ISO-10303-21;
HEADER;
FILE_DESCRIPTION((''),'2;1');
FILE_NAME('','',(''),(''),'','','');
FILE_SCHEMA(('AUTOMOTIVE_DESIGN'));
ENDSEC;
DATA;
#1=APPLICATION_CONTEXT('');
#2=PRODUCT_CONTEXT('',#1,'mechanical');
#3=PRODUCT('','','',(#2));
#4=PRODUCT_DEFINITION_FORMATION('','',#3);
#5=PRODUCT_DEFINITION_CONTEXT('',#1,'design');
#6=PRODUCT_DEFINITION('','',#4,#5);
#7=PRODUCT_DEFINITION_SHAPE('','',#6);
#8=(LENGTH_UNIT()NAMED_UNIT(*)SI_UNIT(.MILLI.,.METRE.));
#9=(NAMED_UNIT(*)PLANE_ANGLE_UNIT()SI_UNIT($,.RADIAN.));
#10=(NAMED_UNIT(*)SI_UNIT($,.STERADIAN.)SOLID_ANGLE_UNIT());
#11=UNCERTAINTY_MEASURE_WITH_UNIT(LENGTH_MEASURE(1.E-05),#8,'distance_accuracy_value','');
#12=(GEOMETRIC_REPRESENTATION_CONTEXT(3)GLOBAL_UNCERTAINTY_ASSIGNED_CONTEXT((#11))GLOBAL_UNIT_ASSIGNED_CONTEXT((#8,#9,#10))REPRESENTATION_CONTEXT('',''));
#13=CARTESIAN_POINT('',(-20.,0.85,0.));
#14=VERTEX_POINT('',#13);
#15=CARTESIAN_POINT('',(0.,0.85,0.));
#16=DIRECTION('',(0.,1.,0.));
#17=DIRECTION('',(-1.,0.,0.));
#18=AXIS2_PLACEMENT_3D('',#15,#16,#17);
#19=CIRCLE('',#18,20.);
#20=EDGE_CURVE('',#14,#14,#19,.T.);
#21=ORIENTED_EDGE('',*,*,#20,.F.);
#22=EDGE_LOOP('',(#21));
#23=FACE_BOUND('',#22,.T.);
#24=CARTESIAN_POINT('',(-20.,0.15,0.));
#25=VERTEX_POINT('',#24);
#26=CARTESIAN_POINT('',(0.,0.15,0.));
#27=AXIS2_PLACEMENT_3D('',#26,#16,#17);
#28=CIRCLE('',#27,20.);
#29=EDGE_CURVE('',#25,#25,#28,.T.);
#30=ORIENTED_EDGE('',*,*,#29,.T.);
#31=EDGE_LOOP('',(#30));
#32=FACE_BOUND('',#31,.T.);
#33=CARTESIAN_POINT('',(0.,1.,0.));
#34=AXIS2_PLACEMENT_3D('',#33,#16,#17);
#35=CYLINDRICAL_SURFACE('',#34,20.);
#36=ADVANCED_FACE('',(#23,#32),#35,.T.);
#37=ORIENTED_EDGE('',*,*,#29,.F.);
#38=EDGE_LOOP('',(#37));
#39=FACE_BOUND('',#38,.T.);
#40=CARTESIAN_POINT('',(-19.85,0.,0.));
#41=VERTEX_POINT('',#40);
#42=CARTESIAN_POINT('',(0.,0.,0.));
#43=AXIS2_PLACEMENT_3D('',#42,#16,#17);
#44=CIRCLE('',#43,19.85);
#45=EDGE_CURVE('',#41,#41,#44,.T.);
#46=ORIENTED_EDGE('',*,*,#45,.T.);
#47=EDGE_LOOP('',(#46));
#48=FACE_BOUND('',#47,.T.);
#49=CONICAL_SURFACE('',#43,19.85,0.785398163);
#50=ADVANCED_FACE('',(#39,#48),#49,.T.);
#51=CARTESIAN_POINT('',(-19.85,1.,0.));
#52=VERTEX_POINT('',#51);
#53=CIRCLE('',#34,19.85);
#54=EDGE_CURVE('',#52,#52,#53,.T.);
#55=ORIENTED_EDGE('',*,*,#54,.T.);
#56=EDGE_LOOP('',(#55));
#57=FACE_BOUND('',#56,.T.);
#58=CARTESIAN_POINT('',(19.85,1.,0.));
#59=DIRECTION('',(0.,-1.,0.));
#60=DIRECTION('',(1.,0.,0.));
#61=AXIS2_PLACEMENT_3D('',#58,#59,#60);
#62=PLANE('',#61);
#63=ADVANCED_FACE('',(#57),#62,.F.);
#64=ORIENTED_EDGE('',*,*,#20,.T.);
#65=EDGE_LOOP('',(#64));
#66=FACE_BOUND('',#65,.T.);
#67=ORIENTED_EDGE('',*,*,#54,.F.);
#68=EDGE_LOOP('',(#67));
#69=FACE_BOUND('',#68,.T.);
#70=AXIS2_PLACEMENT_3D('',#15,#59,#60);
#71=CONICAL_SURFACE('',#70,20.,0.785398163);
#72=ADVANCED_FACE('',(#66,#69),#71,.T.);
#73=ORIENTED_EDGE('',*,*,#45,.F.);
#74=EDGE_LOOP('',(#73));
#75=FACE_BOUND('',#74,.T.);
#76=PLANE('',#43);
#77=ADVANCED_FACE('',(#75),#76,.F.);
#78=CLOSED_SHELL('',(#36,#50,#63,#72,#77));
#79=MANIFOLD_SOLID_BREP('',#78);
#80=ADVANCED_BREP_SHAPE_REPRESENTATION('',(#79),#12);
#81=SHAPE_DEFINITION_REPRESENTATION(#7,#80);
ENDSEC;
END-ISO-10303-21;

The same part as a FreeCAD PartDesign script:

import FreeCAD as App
import Part
import Sketcher

V = App.Vector

doc = App.newDocument("Part")
body = doc.addObject("PartDesign::Body", "Body")

sketch1 = doc.addObject("Sketcher::SketchObject", "Sketch")
body.addObject(sketch1)
sketch1.AttachmentSupport = (doc.XY_Plane, [""])
sketch1.MapMode = "FlatFace"
sketch1.addGeometry([
    Part.LineSegment(V(0, 0, 0), V(19.85, 0, 0)),
    Part.LineSegment(V(19.85, 0, 0), V(20, 0.15, 0)),
    Part.LineSegment(V(20, 0.15, 0), V(20, 0.85, 0)),
    Part.LineSegment(V(20, 0.85, 0), V(19.85, 1, 0)),
    Part.LineSegment(V(19.85, 1, 0), V(0, 1, 0)),
    Part.LineSegment(V(0, 1, 0), V(0, 0, 0)),
], False)
sketch1.addConstraint([
    Sketcher.Constraint("Coincident", 0, 2, 1, 1),
    Sketcher.Constraint("Coincident", 1, 2, 2, 1),
    Sketcher.Constraint("Coincident", 2, 2, 3, 1),
    Sketcher.Constraint("Coincident", 3, 2, 4, 1),
    Sketcher.Constraint("Coincident", 4, 2, 5, 1),
    Sketcher.Constraint("Coincident", 5, 2, 0, 1),
    Sketcher.Constraint("Horizontal", 0),
    Sketcher.Constraint("Vertical", 2),
    Sketcher.Constraint("Horizontal", 4),
    Sketcher.Constraint("Vertical", 5),
    Sketcher.Constraint("Coincident", 5, 2, -1, 1),
    Sketcher.Constraint("Perpendicular", 1, 3),
    Sketcher.Constraint("Vertical", 0, 2, 3, 2),
    Sketcher.Constraint("Equal", 1, 3),
    Sketcher.Constraint("DistanceY", 5, 2, 5, 1, 1.0),
    Sketcher.Constraint("DistanceY", 2, 1, 2, 2, 0.7),
    Sketcher.Constraint("DistanceX", -1, 1, 1, 2, 20.0),
])
revolution = doc.addObject("PartDesign::Revolution", "Revolution")
body.addObject(revolution)
revolution.Profile = sketch1
revolution.ReferenceAxis = (sketch1, ["V_Axis"])
revolution.Angle = 360

doc.recompute()
